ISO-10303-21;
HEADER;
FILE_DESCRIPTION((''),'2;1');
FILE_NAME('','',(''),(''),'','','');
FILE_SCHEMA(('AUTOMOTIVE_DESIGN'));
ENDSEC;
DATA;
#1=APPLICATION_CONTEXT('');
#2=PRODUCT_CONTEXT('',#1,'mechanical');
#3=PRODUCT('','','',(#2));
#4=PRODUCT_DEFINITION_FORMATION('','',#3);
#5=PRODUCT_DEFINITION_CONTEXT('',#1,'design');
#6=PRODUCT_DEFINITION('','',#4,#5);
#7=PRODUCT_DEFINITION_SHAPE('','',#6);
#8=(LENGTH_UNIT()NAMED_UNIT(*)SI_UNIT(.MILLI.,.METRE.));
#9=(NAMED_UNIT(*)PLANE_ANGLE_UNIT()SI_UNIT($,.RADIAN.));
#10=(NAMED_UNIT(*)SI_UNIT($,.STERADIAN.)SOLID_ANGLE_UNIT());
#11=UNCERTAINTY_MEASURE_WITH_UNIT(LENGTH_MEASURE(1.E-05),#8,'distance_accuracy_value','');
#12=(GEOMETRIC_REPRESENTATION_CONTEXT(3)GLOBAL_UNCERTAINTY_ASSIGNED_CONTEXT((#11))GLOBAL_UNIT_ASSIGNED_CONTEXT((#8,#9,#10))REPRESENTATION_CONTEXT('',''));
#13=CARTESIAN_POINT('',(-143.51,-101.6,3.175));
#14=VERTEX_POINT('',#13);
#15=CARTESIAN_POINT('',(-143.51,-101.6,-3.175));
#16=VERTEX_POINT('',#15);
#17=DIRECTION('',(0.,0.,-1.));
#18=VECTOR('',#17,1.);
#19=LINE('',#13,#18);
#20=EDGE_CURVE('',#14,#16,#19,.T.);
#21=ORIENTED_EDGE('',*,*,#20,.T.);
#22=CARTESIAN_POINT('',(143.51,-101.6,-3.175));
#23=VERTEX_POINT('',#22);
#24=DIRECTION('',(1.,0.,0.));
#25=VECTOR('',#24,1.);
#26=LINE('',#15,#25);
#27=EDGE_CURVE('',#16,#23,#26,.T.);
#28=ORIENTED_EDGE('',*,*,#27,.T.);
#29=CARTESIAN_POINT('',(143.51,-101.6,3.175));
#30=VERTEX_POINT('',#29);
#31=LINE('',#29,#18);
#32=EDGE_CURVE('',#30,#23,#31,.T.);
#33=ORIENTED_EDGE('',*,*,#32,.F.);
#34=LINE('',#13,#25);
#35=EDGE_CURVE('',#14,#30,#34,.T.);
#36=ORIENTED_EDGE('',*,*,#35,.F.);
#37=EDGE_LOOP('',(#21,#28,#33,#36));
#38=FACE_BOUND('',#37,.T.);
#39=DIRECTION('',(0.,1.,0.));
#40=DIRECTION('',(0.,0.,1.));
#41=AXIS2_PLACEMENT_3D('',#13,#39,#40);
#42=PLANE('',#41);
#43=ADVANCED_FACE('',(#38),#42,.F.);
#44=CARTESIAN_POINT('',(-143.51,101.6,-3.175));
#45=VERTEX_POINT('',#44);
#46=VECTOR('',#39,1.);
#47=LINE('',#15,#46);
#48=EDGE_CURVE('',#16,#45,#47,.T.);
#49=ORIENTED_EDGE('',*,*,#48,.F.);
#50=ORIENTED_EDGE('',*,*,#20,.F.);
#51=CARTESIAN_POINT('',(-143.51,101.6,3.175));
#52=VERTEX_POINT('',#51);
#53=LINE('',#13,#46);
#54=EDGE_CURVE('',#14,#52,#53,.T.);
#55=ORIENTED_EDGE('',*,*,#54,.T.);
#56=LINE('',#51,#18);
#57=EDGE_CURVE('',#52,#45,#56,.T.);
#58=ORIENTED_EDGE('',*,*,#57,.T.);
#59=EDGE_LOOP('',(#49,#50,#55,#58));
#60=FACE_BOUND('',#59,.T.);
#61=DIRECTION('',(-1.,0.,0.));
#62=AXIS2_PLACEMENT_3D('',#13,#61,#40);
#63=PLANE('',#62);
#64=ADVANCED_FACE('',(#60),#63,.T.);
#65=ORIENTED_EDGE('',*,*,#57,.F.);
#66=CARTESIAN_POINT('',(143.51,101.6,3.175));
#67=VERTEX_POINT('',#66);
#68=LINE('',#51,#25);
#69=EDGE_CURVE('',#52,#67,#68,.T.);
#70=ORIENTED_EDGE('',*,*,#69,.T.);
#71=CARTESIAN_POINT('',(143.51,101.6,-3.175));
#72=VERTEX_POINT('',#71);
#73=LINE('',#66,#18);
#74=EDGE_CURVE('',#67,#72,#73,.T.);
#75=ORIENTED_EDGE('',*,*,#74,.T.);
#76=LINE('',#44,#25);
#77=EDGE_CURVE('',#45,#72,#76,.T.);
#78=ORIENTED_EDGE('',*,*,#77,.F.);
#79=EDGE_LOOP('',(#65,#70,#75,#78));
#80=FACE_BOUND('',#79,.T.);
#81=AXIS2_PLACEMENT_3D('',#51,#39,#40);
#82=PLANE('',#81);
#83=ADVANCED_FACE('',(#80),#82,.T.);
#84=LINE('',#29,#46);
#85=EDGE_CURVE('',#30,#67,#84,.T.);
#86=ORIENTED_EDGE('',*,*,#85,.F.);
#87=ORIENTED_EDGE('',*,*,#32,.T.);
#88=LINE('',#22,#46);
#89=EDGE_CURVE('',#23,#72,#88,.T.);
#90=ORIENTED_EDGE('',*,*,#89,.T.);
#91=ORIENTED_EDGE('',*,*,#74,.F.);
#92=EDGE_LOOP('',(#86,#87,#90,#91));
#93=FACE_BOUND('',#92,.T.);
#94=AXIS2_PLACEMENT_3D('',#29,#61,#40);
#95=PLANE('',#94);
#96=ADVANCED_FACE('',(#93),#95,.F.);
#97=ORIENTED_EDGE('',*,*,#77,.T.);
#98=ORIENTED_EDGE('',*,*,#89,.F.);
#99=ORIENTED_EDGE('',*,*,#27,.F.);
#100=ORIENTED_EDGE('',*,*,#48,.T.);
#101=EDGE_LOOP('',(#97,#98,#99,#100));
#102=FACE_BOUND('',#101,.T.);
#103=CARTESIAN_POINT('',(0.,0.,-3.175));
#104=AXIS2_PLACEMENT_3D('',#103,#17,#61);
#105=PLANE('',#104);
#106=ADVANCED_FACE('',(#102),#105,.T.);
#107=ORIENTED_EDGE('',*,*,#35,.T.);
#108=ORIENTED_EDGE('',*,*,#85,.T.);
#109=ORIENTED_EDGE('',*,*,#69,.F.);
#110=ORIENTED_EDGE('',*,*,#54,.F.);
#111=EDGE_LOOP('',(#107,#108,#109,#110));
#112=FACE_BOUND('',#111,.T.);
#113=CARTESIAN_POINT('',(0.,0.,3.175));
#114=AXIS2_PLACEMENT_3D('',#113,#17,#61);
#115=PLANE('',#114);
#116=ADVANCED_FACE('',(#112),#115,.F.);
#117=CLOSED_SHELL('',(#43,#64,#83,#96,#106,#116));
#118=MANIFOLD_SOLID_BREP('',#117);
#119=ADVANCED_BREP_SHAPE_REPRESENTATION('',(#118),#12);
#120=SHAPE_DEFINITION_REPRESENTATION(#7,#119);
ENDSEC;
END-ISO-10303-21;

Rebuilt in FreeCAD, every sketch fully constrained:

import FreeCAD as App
import Part
import Sketcher
from FreeCAD import Vector
Q = App.Units.Quantity

doc = App.newDocument("Part")
body = doc.addObject("PartDesign::Body", "Body")

# Sketch on XY plane
sketch1 = body.newObject("Sketcher::SketchObject", "Sketch")
sketch1.AttachmentSupport = (doc.getObject("XY_Plane"), [""])
sketch1.MapMode = "FlatFace"
sketch1.addGeometry(Part.LineSegment(Vector(-144, 102, 0), Vector(-144, -102, 0)), False)
sketch1.addGeometry(Part.LineSegment(Vector(-144, -102, 0), Vector(144, -102, 0)), False)
sketch1.addGeometry(Part.LineSegment(Vector(144, -102, 0), Vector(144, 102, 0)), False)
sketch1.addGeometry(Part.LineSegment(Vector(144, 102, 0), Vector(-144, 102, 0)), False)
sketch1.addConstraint(Sketcher.Constraint("Coincident", 0, 2, 1, 1))
sketch1.addConstraint(Sketcher.Constraint("Coincident", 1, 2, 2, 1))
sketch1.addConstraint(Sketcher.Constraint("Coincident", 2, 2, 3, 1))
sketch1.addConstraint(Sketcher.Constraint("Coincident", 3, 2, 0, 1))
sketch1.addConstraint(Sketcher.Constraint("Vertical", 0))
sketch1.addConstraint(Sketcher.Constraint("Horizontal", 1))
sketch1.addConstraint(Sketcher.Constraint("Vertical", 2))
sketch1.addConstraint(Sketcher.Constraint("Horizontal", 3))
sketch1.addConstraint(Sketcher.Constraint("Symmetric", 0, 2, 2, 2, -1, 1))
sketch1.addConstraint(Sketcher.Constraint("DistanceY", 0, 2, 0, 1, Q("8 in")))
sketch1.addConstraint(Sketcher.Constraint("DistanceX", 1, 1, 1, 2, Q("11.3 in")))
pad1 = body.newObject("PartDesign::Pad", "Pad")
pad1.Profile = sketch1
pad1.Length = Q("0.25 in")
pad1.Midplane = True

doc.recompute()
